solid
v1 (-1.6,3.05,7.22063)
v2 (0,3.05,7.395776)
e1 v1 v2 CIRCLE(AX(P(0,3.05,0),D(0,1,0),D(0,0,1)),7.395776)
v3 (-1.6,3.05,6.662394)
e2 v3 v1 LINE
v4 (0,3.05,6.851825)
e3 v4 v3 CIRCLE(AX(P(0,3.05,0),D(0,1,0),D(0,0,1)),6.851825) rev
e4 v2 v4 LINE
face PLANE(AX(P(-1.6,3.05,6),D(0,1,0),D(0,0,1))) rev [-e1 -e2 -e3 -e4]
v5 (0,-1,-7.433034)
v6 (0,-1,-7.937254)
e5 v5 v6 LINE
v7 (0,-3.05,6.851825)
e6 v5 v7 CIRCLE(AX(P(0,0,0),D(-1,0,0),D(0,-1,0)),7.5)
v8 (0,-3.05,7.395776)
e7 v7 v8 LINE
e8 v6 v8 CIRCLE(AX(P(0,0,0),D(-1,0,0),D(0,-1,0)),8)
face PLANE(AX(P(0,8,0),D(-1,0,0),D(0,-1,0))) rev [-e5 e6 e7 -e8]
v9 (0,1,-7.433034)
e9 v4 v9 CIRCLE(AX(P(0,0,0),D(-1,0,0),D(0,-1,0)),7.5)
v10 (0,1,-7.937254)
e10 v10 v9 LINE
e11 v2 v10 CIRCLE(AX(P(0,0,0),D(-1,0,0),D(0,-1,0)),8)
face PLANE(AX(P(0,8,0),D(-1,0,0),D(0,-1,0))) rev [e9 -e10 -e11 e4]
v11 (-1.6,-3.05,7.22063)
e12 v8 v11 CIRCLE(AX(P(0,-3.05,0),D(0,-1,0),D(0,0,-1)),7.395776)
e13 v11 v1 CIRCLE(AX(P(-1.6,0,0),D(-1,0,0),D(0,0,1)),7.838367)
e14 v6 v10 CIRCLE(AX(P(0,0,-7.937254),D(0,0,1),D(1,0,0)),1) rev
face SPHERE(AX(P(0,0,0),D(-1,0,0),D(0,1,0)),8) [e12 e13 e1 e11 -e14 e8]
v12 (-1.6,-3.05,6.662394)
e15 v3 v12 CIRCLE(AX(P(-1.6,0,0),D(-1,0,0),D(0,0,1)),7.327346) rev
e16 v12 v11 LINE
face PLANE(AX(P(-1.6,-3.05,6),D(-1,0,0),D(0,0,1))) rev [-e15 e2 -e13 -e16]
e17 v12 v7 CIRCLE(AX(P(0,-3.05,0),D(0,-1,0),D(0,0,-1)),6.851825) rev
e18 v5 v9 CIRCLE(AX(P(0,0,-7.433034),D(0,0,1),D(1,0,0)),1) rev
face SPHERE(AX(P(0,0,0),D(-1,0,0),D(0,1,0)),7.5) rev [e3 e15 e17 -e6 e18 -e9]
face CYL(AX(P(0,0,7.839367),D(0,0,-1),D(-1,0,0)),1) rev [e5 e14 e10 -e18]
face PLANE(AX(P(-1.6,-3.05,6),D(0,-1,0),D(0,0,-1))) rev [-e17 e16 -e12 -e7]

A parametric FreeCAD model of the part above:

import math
import FreeCAD as App
import Part
import Sketcher

V = App.Vector
Q = App.Units.Quantity

doc = App.newDocument("Part")
body = doc.addObject("PartDesign::Body", "Body")

# Sketch on XY plane
sketch1 = doc.addObject("Sketcher::SketchObject", "Sketch")
body.addObject(sketch1)
sketch1.AttachmentSupport = (doc.XY_Plane, [""])
sketch1.MapMode = "FlatFace"
sketch1.addGeometry([
    Part.LineSegment(V(0, 7.5, 0), V(0, 8, 0)),
    Part.ArcOfCircle(Part.Circle(V(0, 0, 0), V(0, 0, 1), 8), math.radians(90), math.radians(180)),
    Part.LineSegment(V(-8, 0, 0), V(-7.5, 0, 0)),
    Part.ArcOfCircle(Part.Circle(V(0, 0, 0), V(0, 0, 1), 7.5), math.radians(90), math.radians(180)),
], False)
sketch1.addConstraint([
    Sketcher.Constraint("Coincident", 0, 2, 1, 1),
    Sketcher.Constraint("Coincident", 1, 2, 2, 1),
    Sketcher.Constraint("Coincident", 2, 2, 3, 2),
    Sketcher.Constraint("Coincident", 3, 1, 0, 1),
    Sketcher.Constraint("Vertical", 0),
    Sketcher.Constraint("Horizontal", 2),
    Sketcher.Constraint("Coincident", 1, 3, -1, 1),
    Sketcher.Constraint("Coincident", 3, 3, -1, 1),
    Sketcher.Constraint("PointOnObject", 0, 2, -2),
    Sketcher.Constraint("PointOnObject", 1, 2, -1),
    Sketcher.Constraint("Radius", 1, Q("8 mm")),
    Sketcher.Constraint("Radius", 3, Q("7.5 mm")),
])
revolution = doc.addObject("PartDesign::Revolution", "Revolution")
body.addObject(revolution)
revolution.Profile = sketch1
revolution.ReferenceAxis = (sketch1, ["H_Axis"])
revolution.Angle = 360

# Sketch on XY plane
sketch2 = doc.addObject("Sketcher::SketchObject", "Sketch001")
body.addObject(sketch2)
sketch2.AttachmentSupport = (doc.XY_Plane, [""])
sketch2.MapMode = "FlatFace"
sketch2.AttachmentOffset = App.Placement(V(0, 0, 8), App.Rotation())
sketch2.addGeometry([
    Part.LineSegment(V(-1.6, 3, 0), V(-1.6, -3, 0)),
    Part.LineSegment(V(-1.6, -3, 0), V(1.6, -3, 0)),
    Part.LineSegment(V(1.6, -3, 0), V(1.6, 3, 0)),
    Part.LineSegment(V(1.6, 3, 0), V(-1.6, 3, 0)),
], False)
sketch2.addConstraint([
    Sketcher.Constraint("Coincident", 0, 2, 1, 1),
    Sketcher.Constraint("Coincident", 1, 2, 2, 1),
    Sketcher.Constraint("Coincident", 2, 2, 3, 1),
    Sketcher.Constraint("Coincident", 3, 2, 0, 1),
    Sketcher.Constraint("Vertical", 0),
    Sketcher.Constraint("Horizontal", 1),
    Sketcher.Constraint("Vertical", 2),
    Sketcher.Constraint("Horizontal", 3),
    Sketcher.Constraint("Symmetric", 0, 2, 2, 2, -1, 1),
    Sketcher.Constraint("DistanceX", 1, 1, 1, 2, Q("3.2 mm")),
    Sketcher.Constraint("DistanceY", 0, 2, 0, 1, Q("6.1 mm")),
])
pocket1 = doc.addObject("PartDesign::Pocket", "Pocket")
body.addObject(pocket1)
pocket1.Profile = sketch2
pocket1.Length = 2

# Sketch on XY plane
sketch3 = doc.addObject("Sketcher::SketchObject", "Sketch002")
body.addObject(sketch3)
sketch3.AttachmentSupport = (doc.XY_Plane, [""])
sketch3.MapMode = "FlatFace"
sketch3.AttachmentOffset = App.Placement(V(0, 0, -8), App.Rotation())
sketch3.addGeometry(Part.Circle(V(0, 0, 0), V(0, 0, 1), 1), False)
sketch3.addConstraint([
    Sketcher.Constraint("Coincident", 0, 3, -1, 1),
    Sketcher.Constraint("Diameter", 0, Q("2 mm")),
])
pocket2 = doc.addObject("PartDesign::Pocket", "Pocket001")
body.addObject(pocket2)
pocket2.Profile = sketch3
pocket2.Type = "UpToFirst"
pocket2.Reversed = True

doc.recompute()
